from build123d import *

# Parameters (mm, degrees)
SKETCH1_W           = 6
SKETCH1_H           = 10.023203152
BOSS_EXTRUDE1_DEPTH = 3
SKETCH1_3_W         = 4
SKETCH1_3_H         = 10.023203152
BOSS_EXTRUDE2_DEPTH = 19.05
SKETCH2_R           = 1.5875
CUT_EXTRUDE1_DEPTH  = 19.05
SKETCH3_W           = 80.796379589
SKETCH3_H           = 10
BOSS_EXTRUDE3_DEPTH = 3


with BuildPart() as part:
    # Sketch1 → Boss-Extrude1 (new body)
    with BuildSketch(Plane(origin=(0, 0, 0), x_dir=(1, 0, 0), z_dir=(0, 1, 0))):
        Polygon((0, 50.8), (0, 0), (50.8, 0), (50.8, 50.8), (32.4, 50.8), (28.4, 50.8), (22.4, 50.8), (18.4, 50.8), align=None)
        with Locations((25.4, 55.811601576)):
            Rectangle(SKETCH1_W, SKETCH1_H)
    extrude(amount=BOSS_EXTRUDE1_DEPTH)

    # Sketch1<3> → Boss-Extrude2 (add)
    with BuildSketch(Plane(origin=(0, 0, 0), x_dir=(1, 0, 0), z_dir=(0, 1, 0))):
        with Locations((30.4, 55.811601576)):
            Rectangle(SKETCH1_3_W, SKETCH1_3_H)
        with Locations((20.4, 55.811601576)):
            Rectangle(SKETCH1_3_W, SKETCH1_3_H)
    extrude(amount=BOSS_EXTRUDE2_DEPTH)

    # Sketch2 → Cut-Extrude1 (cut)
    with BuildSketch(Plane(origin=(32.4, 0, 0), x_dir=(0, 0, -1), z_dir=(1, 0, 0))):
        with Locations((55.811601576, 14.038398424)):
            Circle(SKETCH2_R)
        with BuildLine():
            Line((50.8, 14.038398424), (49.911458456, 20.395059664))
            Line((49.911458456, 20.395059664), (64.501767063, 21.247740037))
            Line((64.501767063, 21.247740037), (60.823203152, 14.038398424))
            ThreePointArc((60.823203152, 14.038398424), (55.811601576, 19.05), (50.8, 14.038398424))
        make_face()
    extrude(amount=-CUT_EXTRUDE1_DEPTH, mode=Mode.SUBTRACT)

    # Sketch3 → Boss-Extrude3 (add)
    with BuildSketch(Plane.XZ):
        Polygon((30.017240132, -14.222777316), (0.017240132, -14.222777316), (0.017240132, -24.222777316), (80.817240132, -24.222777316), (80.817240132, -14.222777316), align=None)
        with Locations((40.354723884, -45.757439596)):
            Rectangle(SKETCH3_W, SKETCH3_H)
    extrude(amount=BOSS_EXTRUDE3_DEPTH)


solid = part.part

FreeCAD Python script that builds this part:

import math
import FreeCAD as App
import Part
import Sketcher
from FreeCAD import Vector

doc = App.newDocument("Part")
body = doc.addObject("PartDesign::Body", "Body")

# Sketch on XZ plane
sketch1 = doc.addObject("Sketcher::SketchObject", "Sketch")
body.addObject(sketch1)
sketch1.AttachmentSupport = (doc.XZ_Plane, [""])
sketch1.MapMode = "FlatFace"
sketch1.addGeometry([
    Part.LineSegment(Vector(0, -51, 0), Vector(0, 0, 0)),  # 0
    Part.LineSegment(Vector(0, 0, 0), Vector(51, 0, 0)),  # 1
    Part.LineSegment(Vector(51, 0, 0), Vector(51, -51, 0)),  # 2
    Part.LineSegment(Vector(51, -51, 0), Vector(28, -51, 0)),  # 3
    Part.LineSegment(Vector(28, -51, 0), Vector(28, -61, 0)),  # 4
    Part.LineSegment(Vector(28, -61, 0), Vector(22, -61, 0)),  # 5
    Part.LineSegment(Vector(22, -61, 0), Vector(22, -51, 0)),  # 6
    Part.LineSegment(Vector(22, -51, 0), Vector(0, -51, 0)),  # 7
], False)
sketch1.addConstraint([
    Sketcher.Constraint("Coincident", 0, 2, 1, 1),
    Sketcher.Constraint("Coincident", 1, 2, 2, 1),
    Sketcher.Constraint("Coincident", 2, 2, 3, 1),
    Sketcher.Constraint("Coincident", 3, 2, 4, 1),
    Sketcher.Constraint("Coincident", 4, 2, 5, 1),
    Sketcher.Constraint("Coincident", 5, 2, 6, 1),
    Sketcher.Constraint("Coincident", 6, 2, 7, 1),
    Sketcher.Constraint("Coincident", 7, 2, 0, 1),
    Sketcher.Constraint("Vertical", 0),
    Sketcher.Constraint("Horizontal", 1),
    Sketcher.Constraint("Vertical", 2),
    Sketcher.Constraint("Horizontal", 3),
    Sketcher.Constraint("Vertical", 4),
    Sketcher.Constraint("Horizontal", 5),
    Sketcher.Constraint("Vertical", 6),
    Sketcher.Constraint("Horizontal", 7),
    Sketcher.Constraint("Coincident", 0, 2, -1, 1),
    Sketcher.Constraint("Horizontal", 3, 2, 6, 2),
    Sketcher.Constraint("Equal", 3, 7),
    Sketcher.Constraint("Equal", 1, 0),
    Sketcher.Constraint("DistanceX", 5, 2, 5, 1, 6.0),
    Sketcher.Constraint("DistanceX", 1, 1, 1, 2, 50.8),
    Sketcher.Constraint("DistanceY", 4, 2, 4, 1, 10.023203),
])
pad1 = doc.addObject("PartDesign::Pad", "Pad")
body.addObject(pad1)
pad1.Profile = sketch1
pad1.Length = 3
pad1.Reversed = True

# Sketch on XZ plane
sketch2 = doc.addObject("Sketcher::SketchObject", "Sketch001")
body.addObject(sketch2)
sketch2.AttachmentSupport = (doc.XZ_Plane, [""])
sketch2.MapMode = "FlatFace"
sketch2.addGeometry([
    Part.LineSegment(Vector(28.4, -60.8, 0), Vector(28.4, -50.8, 0)),  # 0
    Part.LineSegment(Vector(28.4, -50.8, 0), Vector(32.4, -50.8, 0)),  # 1
    Part.LineSegment(Vector(32.4, -50.8, 0), Vector(32.4, -60.8, 0)),  # 2
    Part.LineSegment(Vector(32.4, -60.8, 0), Vector(28.4, -60.8, 0)),  # 3
    Part.LineSegment(Vector(18.4, -60.8, 0), Vector(18.4, -50.8, 0)),  # 4
    Part.LineSegment(Vector(18.4, -50.8, 0), Vector(22.4, -50.8, 0)),  # 5
    Part.LineSegment(Vector(22.4, -50.8, 0), Vector(22.4, -60.8, 0)),  # 6
    Part.LineSegment(Vector(22.4, -60.8, 0), Vector(18.4, -60.8, 0)),  # 7
], False)
sketch2.addConstraint([
    Sketcher.Constraint("Coincident", 0, 2, 1, 1),
    Sketcher.Constraint("Coincident", 1, 2, 2, 1),
    Sketcher.Constraint("Coincident", 2, 2, 3, 1),
    Sketcher.Constraint("Coincident", 3, 2, 0, 1),
    Sketcher.Constraint("Coincident", 4, 2, 5, 1),
    Sketcher.Constraint("Coincident", 5, 2, 6, 1),
    Sketcher.Constraint("Coincident", 6, 2, 7, 1),
    Sketcher.Constraint("Coincident", 7, 2, 4, 1),
    Sketcher.Constraint("Vertical", 0),
    Sketcher.Constraint("Horizontal", 1),
    Sketcher.Constraint("Vertical", 2),
    Sketcher.Constraint("Horizontal", 3),
    Sketcher.Constraint("Vertical", 4),
    Sketcher.Constraint("Horizontal", 5),
    Sketcher.Constraint("Vertical", 6),
    Sketcher.Constraint("Horizontal", 7),
    Sketcher.Constraint("Horizontal", 1, 2, 4, 2),
    Sketcher.Constraint("Horizontal", 3, 2, 6, 2),
    Sketcher.Constraint("Equal", 3, 5),
    Sketcher.Constraint("DistanceX", 1, 1, 1, 2, 4.0),
    Sketcher.Constraint("DistanceX", 4, 2, 0, 2, 10.0),
    Sketcher.Constraint("DistanceX", -1, 1, 0, 2, 28.4),
    Sketcher.Constraint("DistanceY", 0, 2, -1, 1, 50.8),
    Sketcher.Constraint("DistanceY", 0, 1, 0, 2, 10.023203),
])
pad2 = doc.addObject("PartDesign::Pad", "Pad001")
body.addObject(pad2)
pad2.Profile = sketch2
pad2.Length = 19.05
pad2.Reversed = True

# Sketch on YZ plane
sketch3 = doc.addObject("Sketcher::SketchObject", "Sketch002")
body.addObject(sketch3)
sketch3.AttachmentSupport = (doc.YZ_Plane, [""])
sketch3.MapMode = "FlatFace"
sketch3.AttachmentOffset = App.Placement(Vector(0, 0, 32.4), App.Rotation())
sketch3.addGeometry([
    Part.Circle(Vector(14, -55.8, 0), Vector(0, 0, 1), 1.6),  # 0
    Part.LineSegment(Vector(20.4, -49.9, 0), Vector(14, -50.8, 0)),  # 1
    Part.ArcOfCircle(Part.Circle(Vector(14, -55.8, 0), Vector(0, 0, 1), 5), math.radians(-90), math.radians(90)),  # 2
    Part.LineSegment(Vector(14, -60.8, 0), Vector(21.2, -64.5, 0)),  # 3
    Part.LineSegment(Vector(21.2, -64.5, 0), Vector(20.4, -49.9, 0)),  # 4
], False)
sketch3.addConstraint([
    Sketcher.Constraint("Coincident", 1, 2, 2, 2),
    Sketcher.Constraint("Coincident", 2, 1, 3, 1),
    Sketcher.Constraint("Coincident", 3, 2, 4, 1),
    Sketcher.Constraint("Coincident", 4, 2, 1, 1),
    Sketcher.Constraint("Coincident", 2, 3, 0, 3),
    Sketcher.Constraint("Vertical", 2, 3, 1, 2),
    Sketcher.Constraint("Vertical", 1, 2, 2, 1),
    Sketcher.Constraint("Diameter", 0, 3.175),
    Sketcher.Constraint("DistanceY", 1, 2, -1, 1, 50.8),
    Sketcher.Constraint("Radius", 2, 5.011602),
    Sketcher.Constraint("DistanceX", -1, 1, 0, 3, 14.038398),
    Sketcher.Constraint("Distance", 1, 6.418462),
    Sketcher.Constraint("DistanceX", -1, 1, 3, 2, 21.24774),
    Sketcher.Constraint("DistanceX", -1, 1, 4, 2, 20.39506),
    Sketcher.Constraint("DistanceY", 3, 2, 4, 2, 14.590309),
])
pocket1 = doc.addObject("PartDesign::Pocket", "Pocket")
body.addObject(pocket1)
pocket1.Profile = sketch3
pocket1.Length = 19.05

# Sketch on XZ plane
sketch4 = doc.addObject("Sketcher::SketchObject", "Sketch003")
body.addObject(sketch4)
sketch4.AttachmentSupport = (doc.XZ_Plane, [""])
sketch4.MapMode = "FlatFace"
sketch4.addGeometry([
    Part.LineSegment(Vector(0, -14, 0), Vector(0, -24, 0)),  # 0
    Part.LineSegment(Vector(0, -24, 0), Vector(81, -24, 0)),  # 1
    Part.LineSegment(Vector(81, -24, 0), Vector(81, -14, 0)),  # 2
    Part.LineSegment(Vector(81, -14, 0), Vector(0, -14, 0)),  # 3
    Part.LineSegment(Vector(0, -41, 0), Vector(0, -51, 0)),  # 4
    Part.LineSegment(Vector(0, -51, 0), Vector(81, -51, 0)),  # 5
    Part.LineSegment(Vector(81, -51, 0), Vector(81, -41, 0)),  # 6
    Part.LineSegment(Vector(81, -41, 0), Vector(0, -41, 0)),  # 7
], False)
sketch4.addConstraint([
    Sketcher.Constraint("Coincident", 0, 2, 1, 1),
    Sketcher.Constraint("Coincident", 1, 2, 2, 1),
    Sketcher.Constraint("Coincident", 2, 2, 3, 1),
    Sketcher.Constraint("Coincident", 3, 2, 0, 1),
    Sketcher.Constraint("Coincident", 4, 2, 5, 1),
    Sketcher.Constraint("Coincident", 5, 2, 6, 1),
    Sketcher.Constraint("Coincident", 6, 2, 7, 1),
    Sketcher.Constraint("Coincident", 7, 2, 4, 1),
    Sketcher.Constraint("Vertical", 0),
    Sketcher.Constraint("Horizontal", 1),
    Sketcher.Constraint("Vertical", 2),
    Sketcher.Constraint("Horizontal", 3),
    Sketcher.Constraint("Vertical", 4),
    Sketcher.Constraint("Horizontal", 5),
    Sketcher.Constraint("Vertical", 6),
    Sketcher.Constraint("Horizontal", 7),
    Sketcher.Constraint("Equal", 2, 4),
    Sketcher.Constraint("DistanceY", 0, 2, 0, 1, 10.0),
    Sketcher.Constraint("DistanceX", 1, 1, 1, 2, 80.8),
    Sketcher.Constraint("DistanceX", 5, 1, 5, 2, 80.79638),
    Sketcher.Constraint("DistanceX", -1, 1, 0, 2, 0.01724),
    Sketcher.Constraint("DistanceY", 4, 2, -1, 1, 50.75744),
    Sketcher.Constraint("DistanceY", 0, 2, -1, 1, 24.222777),
    Sketcher.Constraint("DistanceX", 4, 2, -1, 1, 0.043466),
])
pad3 = doc.addObject("PartDesign::Pad", "Pad002")
body.addObject(pad3)
pad3.Profile = sketch4
pad3.Length = 3

doc.recompute()
